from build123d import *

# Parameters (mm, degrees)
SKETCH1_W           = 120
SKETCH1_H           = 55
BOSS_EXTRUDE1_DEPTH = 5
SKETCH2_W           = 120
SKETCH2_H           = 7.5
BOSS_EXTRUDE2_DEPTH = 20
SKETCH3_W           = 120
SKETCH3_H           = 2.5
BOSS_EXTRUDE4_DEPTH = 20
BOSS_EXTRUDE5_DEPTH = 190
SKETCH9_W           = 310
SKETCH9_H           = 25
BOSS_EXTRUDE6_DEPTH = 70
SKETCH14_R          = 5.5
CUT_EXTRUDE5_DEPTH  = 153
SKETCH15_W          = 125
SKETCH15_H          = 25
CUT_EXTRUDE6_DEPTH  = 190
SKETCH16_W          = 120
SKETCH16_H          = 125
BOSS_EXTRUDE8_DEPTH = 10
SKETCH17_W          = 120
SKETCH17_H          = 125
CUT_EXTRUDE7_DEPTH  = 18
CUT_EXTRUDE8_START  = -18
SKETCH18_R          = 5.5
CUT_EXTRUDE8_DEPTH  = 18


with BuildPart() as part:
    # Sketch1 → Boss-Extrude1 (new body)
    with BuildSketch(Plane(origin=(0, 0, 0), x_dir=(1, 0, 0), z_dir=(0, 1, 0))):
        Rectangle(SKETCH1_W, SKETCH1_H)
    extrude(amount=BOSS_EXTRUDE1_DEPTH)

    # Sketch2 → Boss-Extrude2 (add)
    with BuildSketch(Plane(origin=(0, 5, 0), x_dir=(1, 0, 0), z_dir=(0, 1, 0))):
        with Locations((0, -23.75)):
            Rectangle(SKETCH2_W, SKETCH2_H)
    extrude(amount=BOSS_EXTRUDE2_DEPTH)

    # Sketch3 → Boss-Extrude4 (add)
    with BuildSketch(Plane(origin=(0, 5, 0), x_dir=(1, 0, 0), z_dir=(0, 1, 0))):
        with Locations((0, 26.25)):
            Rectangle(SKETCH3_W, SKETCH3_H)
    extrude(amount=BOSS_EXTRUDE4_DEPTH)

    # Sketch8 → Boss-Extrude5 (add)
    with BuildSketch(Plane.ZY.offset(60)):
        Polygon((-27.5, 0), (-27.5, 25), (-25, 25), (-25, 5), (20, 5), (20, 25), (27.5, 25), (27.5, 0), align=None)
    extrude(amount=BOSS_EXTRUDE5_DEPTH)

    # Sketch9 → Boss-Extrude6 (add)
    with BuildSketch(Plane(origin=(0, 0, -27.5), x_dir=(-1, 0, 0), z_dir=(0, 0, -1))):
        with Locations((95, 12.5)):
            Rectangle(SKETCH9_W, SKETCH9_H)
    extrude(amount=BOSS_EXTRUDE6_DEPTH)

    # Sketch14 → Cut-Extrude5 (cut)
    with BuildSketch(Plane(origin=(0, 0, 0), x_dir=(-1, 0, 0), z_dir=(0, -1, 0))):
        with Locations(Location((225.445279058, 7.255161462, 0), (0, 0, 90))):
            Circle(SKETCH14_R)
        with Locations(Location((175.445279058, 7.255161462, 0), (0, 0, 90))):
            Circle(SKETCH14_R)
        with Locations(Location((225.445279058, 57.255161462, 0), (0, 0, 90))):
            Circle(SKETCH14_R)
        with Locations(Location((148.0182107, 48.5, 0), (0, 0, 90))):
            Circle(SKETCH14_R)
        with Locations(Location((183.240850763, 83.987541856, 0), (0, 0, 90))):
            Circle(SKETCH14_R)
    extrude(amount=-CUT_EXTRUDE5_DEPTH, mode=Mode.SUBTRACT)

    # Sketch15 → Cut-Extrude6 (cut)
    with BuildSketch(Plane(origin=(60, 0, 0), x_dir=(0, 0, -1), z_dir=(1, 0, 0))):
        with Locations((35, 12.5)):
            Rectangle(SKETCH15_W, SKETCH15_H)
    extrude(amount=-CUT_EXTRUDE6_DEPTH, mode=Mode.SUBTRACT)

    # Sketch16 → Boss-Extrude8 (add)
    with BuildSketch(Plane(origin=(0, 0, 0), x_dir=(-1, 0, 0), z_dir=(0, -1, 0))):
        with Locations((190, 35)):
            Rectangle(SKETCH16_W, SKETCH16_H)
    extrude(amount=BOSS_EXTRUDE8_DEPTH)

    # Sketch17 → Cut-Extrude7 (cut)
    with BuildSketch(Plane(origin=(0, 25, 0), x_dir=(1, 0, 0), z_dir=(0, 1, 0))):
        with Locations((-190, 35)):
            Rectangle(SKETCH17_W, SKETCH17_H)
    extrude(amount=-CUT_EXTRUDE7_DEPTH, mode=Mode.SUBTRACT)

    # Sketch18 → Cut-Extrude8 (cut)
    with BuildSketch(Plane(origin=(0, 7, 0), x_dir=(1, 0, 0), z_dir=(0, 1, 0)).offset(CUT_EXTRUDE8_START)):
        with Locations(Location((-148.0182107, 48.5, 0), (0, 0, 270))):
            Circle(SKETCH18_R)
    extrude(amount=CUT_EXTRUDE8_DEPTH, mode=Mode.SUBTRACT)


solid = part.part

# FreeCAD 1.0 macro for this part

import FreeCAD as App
import Part
import Sketcher
Q = App.Units.Quantity

doc = App.newDocument("Part")
body = doc.addObject("PartDesign::Body", "Body")

# Sketch on XZ plane
sketch1 = body.newObject("Sketcher::SketchObject", "Sketch")
sketch1.AttachmentSupport = (doc.getObject("XZ_Plane"), [""])
sketch1.MapMode = "FlatFace"
sketch1.addGeometry(Part.LineSegment(App.Vector(-60, -28, 0), App.Vector(-60, 28, 0)), False)
sketch1.addGeometry(Part.LineSegment(App.Vector(-60, 28, 0), App.Vector(60, 28, 0)), False)
sketch1.addGeometry(Part.LineSegment(App.Vector(60, 28, 0), App.Vector(60, -28, 0)), False)
sketch1.addGeometry(Part.LineSegment(App.Vector(60, -28, 0), App.Vector(-60, -28, 0)), False)
sketch1.addConstraint(Sketcher.Constraint("Coincident", 0, 2, 1, 1))
sketch1.addConstraint(Sketcher.Constraint("Coincident", 1, 2, 2, 1))
sketch1.addConstraint(Sketcher.Constraint("Coincident", 2, 2, 3, 1))
sketch1.addConstraint(Sketcher.Constraint("Coincident", 3, 2, 0, 1))
sketch1.addConstraint(Sketcher.Constraint("Vertical", 0))
sketch1.addConstraint(Sketcher.Constraint("Horizontal", 1))
sketch1.addConstraint(Sketcher.Constraint("Vertical", 2))
sketch1.addConstraint(Sketcher.Constraint("Horizontal", 3))
sketch1.addConstraint(Sketcher.Constraint("Symmetric", 0, 2, 2, 2, -1, 1))
sketch1.addConstraint(Sketcher.Constraint("DistanceX", 1, 1, 1, 2, Q("120 mm")))
sketch1.addConstraint(Sketcher.Constraint("DistanceY", 0, 1, 0, 2, Q("55 mm")))
pad1 = body.newObject("PartDesign::Pad", "Pad")
pad1.Profile = sketch1
pad1.Length = 5
pad1.Reversed = True

# Sketch on XZ plane
sketch2 = body.newObject("Sketcher::SketchObject", "Sketch001")
sketch2.AttachmentSupport = (doc.getObject("XZ_Plane"), [""])
sketch2.MapMode = "FlatFace"
sketch2.AttachmentOffset = App.Placement(App.Vector(0, 0, -5), App.Rotation())
sketch2.addGeometry(Part.LineSegment(App.Vector(-60, 20, 0), App.Vector(-60, 28, 0)), False)
sketch2.addGeometry(Part.LineSegment(App.Vector(-60, 28, 0), App.Vector(60, 28, 0)), False)
sketch2.addGeometry(Part.LineSegment(App.Vector(60, 28, 0), App.Vector(60, 20, 0)), False)
sketch2.addGeometry(Part.LineSegment(App.Vector(60, 20, 0), App.Vector(-60, 20, 0)), False)
sketch2.addConstraint(Sketcher.Constraint("Coincident", 0, 2, 1, 1))
sketch2.addConstraint(Sketcher.Constraint("Coincident", 1, 2, 2, 1))
sketch2.addConstraint(Sketcher.Constraint("Coincident", 2, 2, 3, 1))
sketch2.addConstraint(Sketcher.Constraint("Coincident", 3, 2, 0, 1))
sketch2.addConstraint(Sketcher.Constraint("Vertical", 0))
sketch2.addConstraint(Sketcher.Constraint("Horizontal", 1))
sketch2.addConstraint(Sketcher.Constraint("Vertical", 2))
sketch2.addConstraint(Sketcher.Constraint("Horizontal", 3))
sketch2.addConstraint(Sketcher.Constraint("DistanceX", 1, 1, 1, 2, Q("120 mm")))
sketch2.addConstraint(Sketcher.Constraint("DistanceY", 0, 1, 0, 2, Q("7.5 mm")))
sketch2.addConstraint(Sketcher.Constraint("DistanceX", 0, 2, -1, 1, Q("60 mm")))
sketch2.addConstraint(Sketcher.Constraint("DistanceY", -1, 1, 2, 2, Q("20 mm")))
pad2 = body.newObject("PartDesign::Pad", "Pad001")
pad2.Profile = sketch2
pad2.Length = 20
pad2.Reversed = True

# Sketch on XZ plane
sketch3 = body.newObject("Sketcher::SketchObject", "Sketch002")
sketch3.AttachmentSupport = (doc.getObject("XZ_Plane"), [""])
sketch3.MapMode = "FlatFace"
sketch3.AttachmentOffset = App.Placement(App.Vector(0, 0, -5), App.Rotation())
sketch3.addGeometry(Part.LineSegment(App.Vector(-60, -27.5, 0), App.Vector(-60, -25, 0)), False)
sketch3.addGeometry(Part.LineSegment(App.Vector(-60, -25, 0), App.Vector(60, -25, 0)), False)
sketch3.addGeometry(Part.LineSegment(App.Vector(60, -25, 0), App.Vector(60, -27.5, 0)), False)
sketch3.addGeometry(Part.LineSegment(App.Vector(60, -27.5, 0), App.Vector(-60, -27.5, 0)), False)
sketch3.addConstraint(Sketcher.Constraint("Coincident", 0, 2, 1, 1))
sketch3.addConstraint(Sketcher.Constraint("Coincident", 1, 2, 2, 1))
sketch3.addConstraint(Sketcher.Constraint("Coincident", 2, 2, 3, 1))
sketch3.addConstraint(Sketcher.Constraint("Coincident", 3, 2, 0, 1))
sketch3.addConstraint(Sketcher.Constraint("Vertical", 0))
sketch3.addConstraint(Sketcher.Constraint("Horizontal", 1))
sketch3.addConstraint(Sketcher.Constraint("Vertical", 2))
sketch3.addConstraint(Sketcher.Constraint("Horizontal", 3))
sketch3.addConstraint(Sketcher.Constraint("DistanceX", 1, 1, 1, 2, Q("120 mm")))
sketch3.addConstraint(Sketcher.Constraint("DistanceY", 0, 1, 0, 2, Q("2.5 mm")))
sketch3.addConstraint(Sketcher.Constraint("DistanceX", 0, 2, -1, 1, Q("60 mm")))
sketch3.addConstraint(Sketcher.Constraint("DistanceY", 0, 2, -1, 1, Q("25 mm")))
pad3 = body.newObject("PartDesign::Pad", "Pad002")
pad3.Profile = sketch3
pad3.Length = 20
pad3.Reversed = True

# Sketch on YZ plane
sketch4 = body.newObject("Sketcher::SketchObject", "Sketch003")
sketch4.AttachmentSupport = (doc.getObject("YZ_Plane"), [""])
sketch4.MapMode = "FlatFace"
sketch4.AttachmentOffset = App.Placement(App.Vector(0, 0, -60), App.Rotation())
sketch4.addGeometry(Part.LineSegment(App.Vector(25, -27.5, 0), App.Vector(0, -27.5, 0)), False)
sketch4.addGeometry(Part.LineSegment(App.Vector(0, -27.5, 0), App.Vector(0, 27.5, 0)), False)
sketch4.addGeometry(Part.LineSegment(App.Vector(0, 27.5, 0), App.Vector(25, 27.5, 0)), False)
sketch4.addGeometry(Part.LineSegment(App.Vector(25, 27.5, 0), App.Vector(25, 20, 0)), False)
sketch4.addGeometry(Part.LineSegment(App.Vector(25, 20, 0), App.Vector(5, 20, 0)), False)
sketch4.addGeometry(Part.LineSegment(App.Vector(5, 20, 0), App.Vector(5, -25, 0)), False)
sketch4.addGeometry(Part.LineSegment(App.Vector(5, -25, 0), App.Vector(25, -25, 0)), False)
sketch4.addGeometry(Part.LineSegment(App.Vector(25, -25, 0), App.Vector(25, -27.5, 0)), False)
sketch4.addConstraint(Sketcher.Constraint("Coincident", 0, 2, 1, 1))
sketch4.addConstraint(Sketcher.Constraint("Coincident", 1, 2, 2, 1))
sketch4.addConstraint(Sketcher.Constraint("Coincident", 2, 2, 3, 1))
sketch4.addConstraint(Sketcher.Constraint("Coincident", 3, 2, 4, 1))
sketch4.addConstraint(Sketcher.Constraint("Coincident", 4, 2, 5, 1))
sketch4.addConstraint(Sketcher.Constraint("Coincident", 5, 2, 6, 1))
sketch4.addConstraint(Sketcher.Constraint("Coincident", 6, 2, 7, 1))
sketch4.addConstraint(Sketcher.Constraint("Coincident", 7, 2, 0, 1))
sketch4.addConstraint(Sketcher.Constraint("Horizontal", 0))
sketch4.addConstraint(Sketcher.Constraint("Vertical", 1))
sketch4.addConstraint(Sketcher.Constraint("Horizontal", 2))
sketch4.addConstraint(Sketcher.Constraint("Vertical", 3))
sketch4.addConstraint(Sketcher.Constraint("Horizontal", 4))
sketch4.addConstraint(Sketcher.Constraint("Vertical", 5))
sketch4.addConstraint(Sketcher.Constraint("Horizontal", 6))
sketch4.addConstraint(Sketcher.Constraint("Vertical", 7))
sketch4.addConstraint(Sketcher.Constraint("Symmetric", 0, 2, 1, 2, -1, 1))
sketch4.addConstraint(Sketcher.Constraint("Vertical", 3, 2, 6, 2))
sketch4.addConstraint(Sketcher.Constraint("DistanceX", 0, 2, 0, 1, Q("25 mm")))
sketch4.addConstraint(Sketcher.Constraint("DistanceX", 4, 2, 4, 1, Q("20 mm")))
sketch4.addConstraint(Sketcher.Constraint("DistanceY", 1, 1, 1, 2, Q("55 mm")))
sketch4.addConstraint(Sketcher.Constraint("DistanceY", 5, 2, 5, 1, Q("45 mm")))
sketch4.addConstraint(Sketcher.Constraint("DistanceY", 3, 2, 3, 1, Q("7.5 mm")))
pad4 = body.newObject("PartDesign::Pad", "Pad003")
pad4.Profile = sketch4
pad4.Length = 190
pad4.Reversed = True

# Sketch on XY plane
sketch5 = body.newObject("Sketcher::SketchObject", "Sketch004")
sketch5.AttachmentSupport = (doc.getObject("XY_Plane"), [""])
sketch5.MapMode = "FlatFace"
sketch5.AttachmentOffset = App.Placement(App.Vector(0, 0, -27.5), App.Rotation())
sketch5.addGeometry(Part.LineSegment(App.Vector(60, 25, 0), App.Vector(60, 0, 0)), False)
sketch5.addGeometry(Part.LineSegment(App.Vector(60, 0, 0), App.Vector(-250, 0, 0)), False)
sketch5.addGeometry(Part.LineSegment(App.Vector(-250, 0, 0), App.Vector(-250, 25, 0)), False)
sketch5.addGeometry(Part.LineSegment(App.Vector(-250, 25, 0), App.Vector(60, 25, 0)), False)
sketch5.addConstraint(Sketcher.Constraint("Coincident", 0, 2, 1, 1))
sketch5.addConstraint(Sketcher.Constraint("Coincident", 1, 2, 2, 1))
sketch5.addConstraint(Sketcher.Constraint("Coincident", 2, 2, 3, 1))
sketch5.addConstraint(Sketcher.Constraint("Coincident", 3, 2, 0, 1))
sketch5.addConstraint(Sketcher.Constraint("Vertical", 0))
sketch5.addConstraint(Sketcher.Constraint("Horizontal", 1))
sketch5.addConstraint(Sketcher.Constraint("Vertical", 2))
sketch5.addConstraint(Sketcher.Constraint("Horizontal", 3))
sketch5.addConstraint(Sketcher.Constraint("PointOnObject", 0, 2, -1))
sketch5.addConstraint(Sketcher.Constraint("DistanceX", 1, 2, 1, 1, Q("310 mm")))
sketch5.addConstraint(Sketcher.Constraint("DistanceY", 0, 2, 0, 1, Q("25 mm")))
sketch5.addConstraint(Sketcher.Constraint("DistanceX", -1, 1, 0, 2, Q("60 mm")))
pad5 = body.newObject("PartDesign::Pad", "Pad004")
pad5.Profile = sketch5
pad5.Length = 70
pad5.Reversed = True

# Sketch on XZ plane
sketch6 = body.newObject("Sketcher::SketchObject", "Sketch005")
sketch6.AttachmentSupport = (doc.getObject("XZ_Plane"), [""])
sketch6.MapMode = "FlatFace"
sketch6.addGeometry(Part.Circle(App.Vector(-225, -7, 0), App.Vector(0, 0, 1), 6), False)
sketch6.addGeometry(Part.Circle(App.Vector(-175, -7, 0), App.Vector(0, 0, 1), 6), False)
sketch6.addGeometry(Part.Circle(App.Vector(-225, -57, 0), App.Vector(0, 0, 1), 6), False)
sketch6.addGeometry(Part.Circle(App.Vector(-148, -48, 0), App.Vector(0, 0, 1), 6), False)
sketch6.addGeometry(Part.Circle(App.Vector(-183, -84, 0), App.Vector(0, 0, 1), 6), False)
sketch6.addConstraint(Sketcher.Constraint("Equal", 0, 1))
sketch6.addConstraint(Sketcher.Constraint("Equal", 1, 2))
sketch6.addConstraint(Sketcher.Constraint("Equal", 2, 3))
sketch6.addConstraint(Sketcher.Constraint("Equal", 3, 4))
sketch6.addConstraint(Sketcher.Constraint("Horizontal", 0, 3, 1, 3))
sketch6.addConstraint(Sketcher.Constraint("Vertical", 0, 3, 2, 3))
sketch6.addConstraint(Sketcher.Constraint("Diameter", 0, Q("11 mm")))
sketch6.addConstraint(Sketcher.Constraint("DistanceX", 0, 3, 1, 3, Q("50 mm")))
sketch6.addConstraint(Sketcher.Constraint("DistanceY", 2, 3, 0, 3, Q("50 mm")))
sketch6.addConstraint(Sketcher.Constraint("DistanceY", 3, 3, -1, 1, Q("48.5 mm")))
sketch6.addConstraint(Sketcher.Constraint("DistanceX", 0, 3, -1, 1, Q("225.445279 mm")))
sketch6.addConstraint(Sketcher.Constraint("DistanceY", 0, 3, -1, 1, Q("7.255161 mm")))
sketch6.addConstraint(Sketcher.Constraint("DistanceX", 3, 3, -1, 1, Q("148.018211 mm")))
sketch6.addConstraint(Sketcher.Constraint("DistanceX", 4, 3, -1, 1, Q("183.240851 mm")))
sketch6.addConstraint(Sketcher.Constraint("DistanceY", 4, 3, -1, 1, Q("83.987542 mm")))
pocket1 = body.newObject("PartDesign::Pocket", "Pocket")
pocket1.Profile = sketch6
pocket1.Length = 153

# Sketch on YZ plane
sketch7 = body.newObject("Sketcher::SketchObject", "Sketch006")
sketch7.AttachmentSupport = (doc.getObject("YZ_Plane"), [""])
sketch7.MapMode = "FlatFace"
sketch7.AttachmentOffset = App.Placement(App.Vector(0, 0, 60), App.Rotation())
sketch7.addGeometry(Part.LineSegment(App.Vector(25, 28, 0), App.Vector(0, 28, 0)), False)
sketch7.addGeometry(Part.LineSegment(App.Vector(0, 28, 0), App.Vector(0, -98, 0)), False)
sketch7.addGeometry(Part.LineSegment(App.Vector(0, -98, 0), App.Vector(25, -98, 0)), False)
sketch7.addGeometry(Part.LineSegment(App.Vector(25, -98, 0), App.Vector(25, 28, 0)), False)
sketch7.addConstraint(Sketcher.Constraint("Coincident", 0, 2, 1, 1))
sketch7.addConstraint(Sketcher.Constraint("Coincident", 1, 2, 2, 1))
sketch7.addConstraint(Sketcher.Constraint("Coincident", 2, 2, 3, 1))
sketch7.addConstraint(Sketcher.Constraint("Coincident", 3, 2, 0, 1))
sketch7.addConstraint(Sketcher.Constraint("Horizontal", 0))
sketch7.addConstraint(Sketcher.Constraint("Vertical", 1))
sketch7.addConstraint(Sketcher.Constraint("Horizontal", 2))
sketch7.addConstraint(Sketcher.Constraint("Vertical", 3))
sketch7.addConstraint(Sketcher.Constraint("PointOnObject", 0, 2, -2))
sketch7.addConstraint(Sketcher.Constraint("DistanceX", 0, 2, 0, 1, Q("25 mm")))
sketch7.addConstraint(Sketcher.Constraint("DistanceY", 1, 2, 1, 1, Q("125 mm")))
sketch7.addConstraint(Sketcher.Constraint("DistanceY", -1, 1, 0, 2, Q("27.5 mm")))
pocket2 = body.newObject("PartDesign::Pocket", "Pocket001")
pocket2.Profile = sketch7
pocket2.Length = 190

# Sketch on XZ plane
sketch8 = body.newObject("Sketcher::SketchObject", "Sketch007")
sketch8.AttachmentSupport = (doc.getObject("XZ_Plane"), [""])
sketch8.MapMode = "FlatFace"
sketch8.addGeometry(Part.LineSegment(App.Vector(-130, -98, 0), App.Vector(-130, 28, 0)), False)
sketch8.addGeometry(Part.LineSegment(App.Vector(-130, 28, 0), App.Vector(-250, 28, 0)), False)
sketch8.addGeometry(Part.LineSegment(App.Vector(-250, 28, 0), App.Vector(-250, -98, 0)), False)
sketch8.addGeometry(Part.LineSegment(App.Vector(-250, -98, 0), App.Vector(-130, -98, 0)), False)
sketch8.addConstraint(Sketcher.Constraint("Coincident", 0, 2, 1, 1))
sketch8.addConstraint(Sketcher.Constraint("Coincident", 1, 2, 2, 1))
sketch8.addConstraint(Sketcher.Constraint("Coincident", 2, 2, 3, 1))
sketch8.addConstraint(Sketcher.Constraint("Coincident", 3, 2, 0, 1))
sketch8.addConstraint(Sketcher.Constraint("Vertical", 0))
sketch8.addConstraint(Sketcher.Constraint("Horizontal", 1))
sketch8.addConstraint(Sketcher.Constraint("Vertical", 2))
sketch8.addConstraint(Sketcher.Constraint("Horizontal", 3))
sketch8.addConstraint(Sketcher.Constraint("DistanceX", 1, 2, 1, 1, Q("120 mm")))
sketch8.addConstraint(Sketcher.Constraint("DistanceY", 0, 1, 0, 2, Q("125 mm")))
sketch8.addConstraint(Sketcher.Constraint("DistanceX", 0, 2, -1, 1, Q("130 mm")))
sketch8.addConstraint(Sketcher.Constraint("DistanceY", -1, 1, 0, 2, Q("27.5 mm")))
pad6 = body.newObject("PartDesign::Pad", "Pad005")
pad6.Profile = sketch8
pad6.Length = 10

# Sketch on XZ plane
sketch9 = body.newObject("Sketcher::SketchObject", "Sketch008")
sketch9.AttachmentSupport = (doc.getObject("XZ_Plane"), [""])
sketch9.MapMode = "FlatFace"
sketch9.AttachmentOffset = App.Placement(App.Vector(0, 0, -25), App.Rotation())
sketch9.addGeometry(Part.LineSegment(App.Vector(-250, -98, 0), App.Vector(-250, 28, 0)), False)
sketch9.addGeometry(Part.LineSegment(App.Vector(-250, 28, 0), App.Vector(-130, 28, 0)), False)
sketch9.addGeometry(Part.LineSegment(App.Vector(-130, 28, 0), App.Vector(-130, -98, 0)), False)
sketch9.addGeometry(Part.LineSegment(App.Vector(-130, -98, 0), App.Vector(-250, -98, 0)), False)
sketch9.addConstraint(Sketcher.Constraint("Coincident", 0, 2, 1, 1))
sketch9.addConstraint(Sketcher.Constraint("Coincident", 1, 2, 2, 1))
sketch9.addConstraint(Sketcher.Constraint("Coincident", 2, 2, 3, 1))
sketch9.addConstraint(Sketcher.Constraint("Coincident", 3, 2, 0, 1))
sketch9.addConstraint(Sketcher.Constraint("Vertical", 0))
sketch9.addConstraint(Sketcher.Constraint("Horizontal", 1))
sketch9.addConstraint(Sketcher.Constraint("Vertical", 2))
sketch9.addConstraint(Sketcher.Constraint("Horizontal", 3))
sketch9.addConstraint(Sketcher.Constraint("DistanceX", 1, 1, 1, 2, Q("120 mm")))
sketch9.addConstraint(Sketcher.Constraint("DistanceY", 0, 1, 0, 2, Q("125 mm")))
sketch9.addConstraint(Sketcher.Constraint("DistanceX", 0, 2, -1, 1, Q("250 mm")))
sketch9.addConstraint(Sketcher.Constraint("DistanceY", -1, 1, 0, 2, Q("27.5 mm")))
pocket3 = body.newObject("PartDesign::Pocket", "Pocket002")
pocket3.Profile = sketch9
pocket3.Length = 18
pocket3.Reversed = True

# Sketch on XZ plane
sketch10 = body.newObject("Sketcher::SketchObject", "Sketch009")
sketch10.AttachmentSupport = (doc.getObject("XZ_Plane"), [""])
sketch10.MapMode = "FlatFace"
sketch10.AttachmentOffset = App.Placement(App.Vector(0, 0, 11), App.Rotation())
sketch10.addGeometry(Part.Circle(App.Vector(-148, -48, 0), App.Vector(0, 0, 1), 6), False)
sketch10.addConstraint(Sketcher.Constraint("Diameter", 0, Q("11 mm")))
sketch10.addConstraint(Sketcher.Constraint("DistanceY", 0, 3, -1, 1, Q("48.5 mm")))
sketch10.addConstraint(Sketcher.Constraint("DistanceX", 0, 3, -1, 1, Q("148.018211 mm")))
pocket4 = body.newObject("PartDesign::Pocket", "Pocket003")
pocket4.Profile = sketch10
pocket4.Length = 18

doc.recompute()
